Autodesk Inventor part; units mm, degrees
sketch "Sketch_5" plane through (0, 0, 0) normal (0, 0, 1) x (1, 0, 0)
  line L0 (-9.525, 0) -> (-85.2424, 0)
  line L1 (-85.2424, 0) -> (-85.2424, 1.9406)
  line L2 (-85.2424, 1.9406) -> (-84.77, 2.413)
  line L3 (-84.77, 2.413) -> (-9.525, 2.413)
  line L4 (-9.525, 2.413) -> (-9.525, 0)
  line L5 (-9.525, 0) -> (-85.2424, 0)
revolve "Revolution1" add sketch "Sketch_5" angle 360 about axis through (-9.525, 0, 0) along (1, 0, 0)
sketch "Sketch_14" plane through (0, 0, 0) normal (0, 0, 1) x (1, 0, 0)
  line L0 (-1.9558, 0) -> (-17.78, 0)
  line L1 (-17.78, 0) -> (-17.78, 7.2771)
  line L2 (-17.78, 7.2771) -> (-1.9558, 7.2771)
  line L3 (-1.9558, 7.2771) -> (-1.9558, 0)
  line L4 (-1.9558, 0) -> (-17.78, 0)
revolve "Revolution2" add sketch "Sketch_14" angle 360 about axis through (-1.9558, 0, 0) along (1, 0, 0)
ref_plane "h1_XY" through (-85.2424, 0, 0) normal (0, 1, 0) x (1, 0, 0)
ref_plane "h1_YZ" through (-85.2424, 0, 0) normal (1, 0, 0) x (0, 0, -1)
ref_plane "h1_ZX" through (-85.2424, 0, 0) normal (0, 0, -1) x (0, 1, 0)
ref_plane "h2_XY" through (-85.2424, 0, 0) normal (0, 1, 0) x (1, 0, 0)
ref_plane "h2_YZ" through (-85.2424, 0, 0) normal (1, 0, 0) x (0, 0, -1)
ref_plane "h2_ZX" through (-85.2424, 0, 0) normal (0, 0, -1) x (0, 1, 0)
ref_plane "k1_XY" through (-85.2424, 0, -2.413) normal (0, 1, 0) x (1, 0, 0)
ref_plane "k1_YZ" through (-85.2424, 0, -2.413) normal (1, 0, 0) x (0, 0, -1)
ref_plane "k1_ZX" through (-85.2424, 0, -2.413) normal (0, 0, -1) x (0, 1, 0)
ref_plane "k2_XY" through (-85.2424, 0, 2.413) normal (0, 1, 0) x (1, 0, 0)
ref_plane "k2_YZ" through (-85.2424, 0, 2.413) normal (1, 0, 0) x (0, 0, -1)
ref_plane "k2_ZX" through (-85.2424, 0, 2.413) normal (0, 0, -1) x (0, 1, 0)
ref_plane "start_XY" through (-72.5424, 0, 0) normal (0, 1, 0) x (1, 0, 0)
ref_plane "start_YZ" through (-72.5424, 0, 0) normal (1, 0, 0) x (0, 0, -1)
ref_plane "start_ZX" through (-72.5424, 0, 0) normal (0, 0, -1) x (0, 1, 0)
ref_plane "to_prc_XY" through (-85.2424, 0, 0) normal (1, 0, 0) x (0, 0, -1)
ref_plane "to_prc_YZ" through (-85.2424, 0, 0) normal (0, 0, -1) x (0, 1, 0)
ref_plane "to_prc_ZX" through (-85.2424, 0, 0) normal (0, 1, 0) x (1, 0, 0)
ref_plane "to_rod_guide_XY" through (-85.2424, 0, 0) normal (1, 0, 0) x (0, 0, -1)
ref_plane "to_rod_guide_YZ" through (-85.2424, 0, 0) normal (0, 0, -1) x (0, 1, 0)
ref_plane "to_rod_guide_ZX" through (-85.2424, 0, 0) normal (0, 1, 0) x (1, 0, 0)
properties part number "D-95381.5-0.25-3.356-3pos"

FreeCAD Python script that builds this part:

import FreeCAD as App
import Part
import Sketcher
from FreeCAD import Vector
Q = App.Units.Quantity

doc = App.newDocument("Part")
body = doc.addObject("PartDesign::Body", "Body")

# Sketch on XY plane
sketch1 = body.newObject("Sketcher::SketchObject", "Sketch")
sketch1.AttachmentSupport = (doc.getObject("XY_Plane"), [""])
sketch1.MapMode = "FlatFace"
sketch1.addGeometry([
    Part.LineSegment(Vector(-85.2, 0, 0), Vector(-9.5, 0, 0)),  # 0
    Part.LineSegment(Vector(-9.5, 0, 0), Vector(-9.5, 2.4, 0)),  # 1
    Part.LineSegment(Vector(-9.5, 2.4, 0), Vector(-84.8, 2.4, 0)),  # 2
    Part.LineSegment(Vector(-84.8, 2.4, 0), Vector(-85.2, 1.9, 0)),  # 3
    Part.LineSegment(Vector(-85.2, 1.9, 0), Vector(-85.2, 0, 0)),  # 4
], False)
sketch1.addConstraint([
    Sketcher.Constraint("Coincident", 0, 2, 1, 1),
    Sketcher.Constraint("Coincident", 1, 2, 2, 1),
    Sketcher.Constraint("Coincident", 2, 2, 3, 1),
    Sketcher.Constraint("Coincident", 3, 2, 4, 1),
    Sketcher.Constraint("Coincident", 4, 2, 0, 1),
    Sketcher.Constraint("Horizontal", 0),
    Sketcher.Constraint("Vertical", 1),
    Sketcher.Constraint("Horizontal", 2),
    Sketcher.Constraint("Vertical", 4),
    Sketcher.Constraint("PointOnObject", 0, 2, -1),
    Sketcher.Constraint("Angle", 3, Q("-135 deg")),
    Sketcher.Constraint("DistanceX", 0, 1, 0, 2, Q("2.981 in")),
    Sketcher.Constraint("DistanceY", 1, 1, 1, 2, Q("0.095 in")),
    Sketcher.Constraint("DistanceX", 2, 2, 2, 1, Q("2.9624 in")),
    Sketcher.Constraint("DistanceX", 0, 2, -1, 1, Q("0.375 in")),
])
revolution = body.newObject("PartDesign::Revolution", "Revolution")
revolution.Profile = sketch1
revolution.ReferenceAxis = (sketch1, ["H_Axis"])
revolution.Angle = 360

# Sketch on XY plane
sketch2 = body.newObject("Sketcher::SketchObject", "Sketch001")
sketch2.AttachmentSupport = (doc.getObject("XY_Plane"), [""])
sketch2.MapMode = "FlatFace"
sketch2.addGeometry([
    Part.LineSegment(Vector(-18, 0, 0), Vector(-2, 0, 0)),
    Part.LineSegment(Vector(-2, 0, 0), Vector(-2, 7, 0)),
    Part.LineSegment(Vector(-2, 7, 0), Vector(-18, 7, 0)),
    Part.LineSegment(Vector(-18, 7, 0), Vector(-18, 0, 0)),
], False)
sketch2.addConstraint([
    Sketcher.Constraint("Coincident", 0, 2, 1, 1),
    Sketcher.Constraint("Coincident", 1, 2, 2, 1),
    Sketcher.Constraint("Coincident", 2, 2, 3, 1),
    Sketcher.Constraint("Coincident", 3, 2, 0, 1),
    Sketcher.Constraint("Horizontal", 0),
    Sketcher.Constraint("Vertical", 1),
    Sketcher.Constraint("Horizontal", 2),
    Sketcher.Constraint("Vertical", 3),
    Sketcher.Constraint("PointOnObject", 0, 2, -1),
    Sketcher.Constraint("DistanceX", 2, 2, -1, 1, Q("0.7 in")),
    Sketcher.Constraint("DistanceX", 0, 1, 0, 2, Q("0.623 in")),
    Sketcher.Constraint("DistanceY", 1, 1, 1, 2, Q("0.2865 in")),
])
revolution2 = body.newObject("PartDesign::Revolution", "Revolution001")
revolution2.Profile = sketch2
revolution2.ReferenceAxis = (sketch2, ["H_Axis"])
revolution2.Angle = 360

doc.recompute()
